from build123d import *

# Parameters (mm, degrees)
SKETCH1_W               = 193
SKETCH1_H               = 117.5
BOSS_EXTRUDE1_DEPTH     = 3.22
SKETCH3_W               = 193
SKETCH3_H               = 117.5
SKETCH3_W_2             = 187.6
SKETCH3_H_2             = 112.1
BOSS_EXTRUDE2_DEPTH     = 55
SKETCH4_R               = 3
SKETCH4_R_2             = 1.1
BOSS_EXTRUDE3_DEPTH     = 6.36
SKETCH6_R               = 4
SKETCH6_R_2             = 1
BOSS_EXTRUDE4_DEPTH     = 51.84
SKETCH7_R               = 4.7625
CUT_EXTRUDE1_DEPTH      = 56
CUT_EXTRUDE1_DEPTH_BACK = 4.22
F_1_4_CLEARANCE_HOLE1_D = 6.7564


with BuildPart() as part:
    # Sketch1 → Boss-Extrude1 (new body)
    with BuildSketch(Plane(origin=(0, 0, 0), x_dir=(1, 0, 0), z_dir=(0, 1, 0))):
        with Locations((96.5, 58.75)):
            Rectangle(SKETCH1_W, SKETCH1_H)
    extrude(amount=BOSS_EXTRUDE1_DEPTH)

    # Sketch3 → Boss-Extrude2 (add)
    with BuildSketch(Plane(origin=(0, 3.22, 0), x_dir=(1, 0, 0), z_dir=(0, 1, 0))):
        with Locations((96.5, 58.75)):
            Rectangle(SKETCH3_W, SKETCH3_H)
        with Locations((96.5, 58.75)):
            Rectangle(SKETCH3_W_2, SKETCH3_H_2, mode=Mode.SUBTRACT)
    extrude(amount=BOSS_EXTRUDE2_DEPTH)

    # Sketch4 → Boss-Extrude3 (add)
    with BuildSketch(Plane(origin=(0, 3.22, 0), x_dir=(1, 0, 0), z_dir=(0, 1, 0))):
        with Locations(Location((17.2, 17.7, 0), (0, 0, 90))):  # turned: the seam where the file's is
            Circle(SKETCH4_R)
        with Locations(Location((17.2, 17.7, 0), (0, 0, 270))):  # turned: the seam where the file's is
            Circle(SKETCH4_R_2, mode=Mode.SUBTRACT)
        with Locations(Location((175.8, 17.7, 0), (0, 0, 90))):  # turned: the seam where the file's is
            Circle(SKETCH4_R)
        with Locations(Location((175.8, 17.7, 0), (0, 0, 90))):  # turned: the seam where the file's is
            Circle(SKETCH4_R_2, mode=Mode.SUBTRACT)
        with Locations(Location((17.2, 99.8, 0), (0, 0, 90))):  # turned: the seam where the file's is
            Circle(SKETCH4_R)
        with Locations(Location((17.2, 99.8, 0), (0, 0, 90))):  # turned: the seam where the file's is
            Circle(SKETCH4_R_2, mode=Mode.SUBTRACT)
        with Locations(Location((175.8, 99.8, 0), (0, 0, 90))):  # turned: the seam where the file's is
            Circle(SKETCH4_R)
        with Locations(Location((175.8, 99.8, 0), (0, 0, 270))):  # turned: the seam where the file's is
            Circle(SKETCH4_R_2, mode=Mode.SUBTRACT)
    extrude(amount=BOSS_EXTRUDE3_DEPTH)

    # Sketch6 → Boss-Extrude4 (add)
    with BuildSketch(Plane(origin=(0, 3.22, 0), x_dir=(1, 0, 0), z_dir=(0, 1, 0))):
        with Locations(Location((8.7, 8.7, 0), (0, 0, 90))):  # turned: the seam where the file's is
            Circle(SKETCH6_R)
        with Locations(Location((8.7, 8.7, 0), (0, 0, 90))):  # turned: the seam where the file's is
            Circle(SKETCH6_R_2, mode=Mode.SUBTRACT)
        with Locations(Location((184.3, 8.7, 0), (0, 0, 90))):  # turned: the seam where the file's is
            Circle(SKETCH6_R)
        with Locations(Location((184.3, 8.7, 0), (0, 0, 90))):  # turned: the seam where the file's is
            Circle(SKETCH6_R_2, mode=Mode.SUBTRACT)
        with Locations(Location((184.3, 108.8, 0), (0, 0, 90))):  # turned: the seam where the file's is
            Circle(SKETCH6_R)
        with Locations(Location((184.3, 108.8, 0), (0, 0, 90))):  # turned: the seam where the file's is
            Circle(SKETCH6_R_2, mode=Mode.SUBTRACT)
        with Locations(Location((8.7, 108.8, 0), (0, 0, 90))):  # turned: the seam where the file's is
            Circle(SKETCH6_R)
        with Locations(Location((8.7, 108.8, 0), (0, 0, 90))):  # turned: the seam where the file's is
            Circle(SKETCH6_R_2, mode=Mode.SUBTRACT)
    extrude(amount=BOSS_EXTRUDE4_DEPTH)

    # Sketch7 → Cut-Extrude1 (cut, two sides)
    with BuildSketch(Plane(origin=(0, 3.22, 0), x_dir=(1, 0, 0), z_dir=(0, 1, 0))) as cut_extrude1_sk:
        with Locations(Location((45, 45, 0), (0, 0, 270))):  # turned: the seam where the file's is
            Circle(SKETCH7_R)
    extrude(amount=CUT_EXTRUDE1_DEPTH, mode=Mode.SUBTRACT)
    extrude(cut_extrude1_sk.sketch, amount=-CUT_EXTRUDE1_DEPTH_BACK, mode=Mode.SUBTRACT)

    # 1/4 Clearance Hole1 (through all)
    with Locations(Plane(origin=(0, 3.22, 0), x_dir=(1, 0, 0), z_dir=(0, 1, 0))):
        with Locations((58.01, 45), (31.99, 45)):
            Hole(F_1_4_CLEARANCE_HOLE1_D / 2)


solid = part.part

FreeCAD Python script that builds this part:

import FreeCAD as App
import Part
import Sketcher


def add_polygon(sketch, points):
    """Adds a closed chain of lines whose ends are joined by coincident constraints."""
    first, n = sketch.GeometryCount, len(points)
    for a, b in zip(points, points[1:] + points[:1]):
        sketch.addGeometry(Part.LineSegment(App.Vector(*a, 0), App.Vector(*b, 0)), False)
    for i in range(n):
        sketch.addConstraint(Sketcher.Constraint("Coincident", first + i, 2, first + (i + 1) % n, 1))

doc = App.newDocument("Part")
body = doc.addObject("PartDesign::Body", "Body")

# Sketch on XZ plane
sketch1 = doc.addObject("Sketcher::SketchObject", "Sketch")
body.addObject(sketch1)
sketch1.AttachmentSupport = (doc.XZ_Plane, [""])
sketch1.MapMode = "FlatFace"
add_polygon(sketch1, [(0, -118), (0, 0), (193, 0), (193, -118)])  # lines 0-3
sketch1.addConstraint([
    Sketcher.Constraint("Vertical", 0),
    Sketcher.Constraint("Horizontal", 1),
    Sketcher.Constraint("Vertical", 2),
    Sketcher.Constraint("Horizontal", 3),
    Sketcher.Constraint("Coincident", 0, 2, -1, 1),
    Sketcher.Constraint("DistanceX", 1, 1, 1, 2, 193.0),
    Sketcher.Constraint("DistanceY", 0, 1, 0, 2, 117.5),
])
pad1 = doc.addObject("PartDesign::Pad", "Pad")
body.addObject(pad1)
pad1.Profile = sketch1
pad1.Length = 3.22
pad1.Reversed = True

# Sketch on XZ plane
sketch2 = doc.addObject("Sketcher::SketchObject", "Sketch001")
body.addObject(sketch2)
sketch2.AttachmentSupport = (doc.XZ_Plane, [""])
sketch2.MapMode = "FlatFace"
sketch2.AttachmentOffset = App.Placement(App.Vector(0, 0, -3.22), App.Rotation())
add_polygon(sketch2, [(0, -118), (0, 0), (193, 0), (193, -118)])  # lines 0-3
add_polygon(sketch2, [(190, -3), (3, -3), (3, -115), (190, -115)])  # lines 4-7
sketch2.addConstraint([
    Sketcher.Constraint("Vertical", 0),
    Sketcher.Constraint("Horizontal", 1),
    Sketcher.Constraint("Vertical", 2),
    Sketcher.Constraint("Horizontal", 3),
    Sketcher.Constraint("Horizontal", 4),
    Sketcher.Constraint("Vertical", 5),
    Sketcher.Constraint("Horizontal", 6),
    Sketcher.Constraint("Vertical", 7),
    Sketcher.Constraint("Coincident", 0, 2, -1, 1),
    Sketcher.Constraint("DistanceX", 1, 1, 1, 2, 193.0),
    Sketcher.Constraint("DistanceX", 4, 2, 4, 1, 187.6),
    Sketcher.Constraint("DistanceY", 0, 1, 0, 2, 117.5),
    Sketcher.Constraint("DistanceY", 5, 2, 5, 1, 112.1),
    Sketcher.Constraint("DistanceX", -1, 1, 4, 2, 2.7),
    Sketcher.Constraint("DistanceY", 4, 2, -1, 1, 2.7),
])
pad2 = doc.addObject("PartDesign::Pad", "Pad001")
body.addObject(pad2)
pad2.Profile = sketch2
pad2.Length = 55
pad2.Reversed = True

# Sketch on XZ plane
sketch3 = doc.addObject("Sketcher::SketchObject", "Sketch002")
body.addObject(sketch3)
sketch3.AttachmentSupport = (doc.XZ_Plane, [""])
sketch3.MapMode = "FlatFace"
sketch3.AttachmentOffset = App.Placement(App.Vector(0, 0, -3.22), App.Rotation())
sketch3.addGeometry([
    Part.Circle(App.Vector(17.2, -17.7, 0), App.Vector(0, 0, 1), 3),  # 0
    Part.Circle(App.Vector(17.2, -17.7, 0), App.Vector(0, 0, 1), 1.1),  # 1
    Part.Circle(App.Vector(175.8, -17.7, 0), App.Vector(0, 0, 1), 3),  # 2
    Part.Circle(App.Vector(175.8, -17.7, 0), App.Vector(0, 0, 1), 1.1),  # 3
    Part.Circle(App.Vector(17.2, -99.8, 0), App.Vector(0, 0, 1), 3),  # 4
    Part.Circle(App.Vector(17.2, -99.8, 0), App.Vector(0, 0, 1), 1.1),  # 5
    Part.Circle(App.Vector(175.8, -99.8, 0), App.Vector(0, 0, 1), 3),  # 6
    Part.Circle(App.Vector(175.8, -99.8, 0), App.Vector(0, 0, 1), 1.1),  # 7
], False)
sketch3.addConstraint([
    Sketcher.Constraint("Coincident", 1, 3, 0, 3),
    Sketcher.Constraint("Coincident", 3, 3, 2, 3),
    Sketcher.Constraint("Coincident", 5, 3, 4, 3),
    Sketcher.Constraint("Coincident", 7, 3, 6, 3),
    Sketcher.Constraint("Equal", 0, 2),
    Sketcher.Constraint("Equal", 1, 3),
    Sketcher.Constraint("Equal", 2, 4),
    Sketcher.Constraint("Equal", 3, 5),
    Sketcher.Constraint("Equal", 4, 6),
    Sketcher.Constraint("Equal", 5, 7),
    Sketcher.Constraint("Horizontal", 1, 3, 2, 3),
    Sketcher.Constraint("Horizontal", 5, 3, 6, 3),
    Sketcher.Constraint("Vertical", 1, 3, 4, 3),
    Sketcher.Constraint("Vertical", 3, 3, 6, 3),
    Sketcher.Constraint("Diameter", 0, 6.0),
    Sketcher.Constraint("Diameter", 1, 2.2),
    Sketcher.Constraint("DistanceX", -1, 1, 0, 3, 17.2),
    Sketcher.Constraint("DistanceY", 0, 3, -1, 1, 17.7),
    Sketcher.Constraint("DistanceX", -1, 1, 2, 3, 175.8),
    Sketcher.Constraint("DistanceY", 4, 3, -1, 1, 99.8),
])
pad3 = doc.addObject("PartDesign::Pad", "Pad002")
body.addObject(pad3)
pad3.Profile = sketch3
pad3.Length = 6.36
pad3.Reversed = True

# Sketch on XZ plane
sketch4 = doc.addObject("Sketcher::SketchObject", "Sketch003")
body.addObject(sketch4)
sketch4.AttachmentSupport = (doc.XZ_Plane, [""])
sketch4.MapMode = "FlatFace"
sketch4.AttachmentOffset = App.Placement(App.Vector(0, 0, -3.22), App.Rotation())
sketch4.addGeometry([
    Part.Circle(App.Vector(8.7, -8.7, 0), App.Vector(0, 0, 1), 4),  # 0
    Part.Circle(App.Vector(8.7, -8.7, 0), App.Vector(0, 0, 1), 1),  # 1
    Part.Circle(App.Vector(184.3, -8.7, 0), App.Vector(0, 0, 1), 4),  # 2
    Part.Circle(App.Vector(184.3, -8.7, 0), App.Vector(0, 0, 1), 1),  # 3
    Part.Circle(App.Vector(184.3, -108.8, 0), App.Vector(0, 0, 1), 4),  # 4
    Part.Circle(App.Vector(184.3, -108.8, 0), App.Vector(0, 0, 1), 1),  # 5
    Part.Circle(App.Vector(8.7, -108.8, 0), App.Vector(0, 0, 1), 4),  # 6
    Part.Circle(App.Vector(8.7, -108.8, 0), App.Vector(0, 0, 1), 1),  # 7
], False)
sketch4.addConstraint([
    Sketcher.Constraint("Coincident", 1, 3, 0, 3),
    Sketcher.Constraint("Coincident", 3, 3, 2, 3),
    Sketcher.Constraint("Coincident", 5, 3, 4, 3),
    Sketcher.Constraint("Coincident", 7, 3, 6, 3),
    Sketcher.Constraint("Equal", 0, 2),
    Sketcher.Constraint("Equal", 1, 3),
    Sketcher.Constraint("Equal", 2, 4),
    Sketcher.Constraint("Equal", 3, 5),
    Sketcher.Constraint("Equal", 4, 6),
    Sketcher.Constraint("Equal", 5, 7),
    Sketcher.Constraint("Horizontal", 1, 3, 2, 3),
    Sketcher.Constraint("Horizontal", 5, 3, 6, 3),
    Sketcher.Constraint("Vertical", 3, 3, 4, 3),
    Sketcher.Constraint("Vertical", 1, 3, 6, 3),
    Sketcher.Constraint("Diameter", 0, 8.0),
    Sketcher.Constraint("Diameter", 1, 2.0),
    Sketcher.Constraint("DistanceX", -1, 1, 0, 3, 8.7),
    Sketcher.Constraint("DistanceY", 0, 3, -1, 1, 8.7),
    Sketcher.Constraint("DistanceX", -1, 1, 2, 3, 184.3),
    Sketcher.Constraint("DistanceY", 4, 3, -1, 1, 108.8),
])
pad4 = doc.addObject("PartDesign::Pad", "Pad003")
body.addObject(pad4)
pad4.Profile = sketch4
pad4.Length = 51.84
pad4.Reversed = True

# Sketch on XZ plane
sketch5 = doc.addObject("Sketcher::SketchObject", "Sketch004")
body.addObject(sketch5)
sketch5.AttachmentSupport = (doc.XZ_Plane, [""])
sketch5.MapMode = "FlatFace"
sketch5.AttachmentOffset = App.Placement(App.Vector(0, 0, -3.22), App.Rotation())
sketch5.addGeometry(Part.Circle(App.Vector(45, -45, 0), App.Vector(0, 0, 1), 4.8), False)
sketch5.addConstraint([
    Sketcher.Constraint("Diameter", 0, 9.525),
    Sketcher.Constraint("DistanceX", -1, 1, 0, 3, 45.0),
    Sketcher.Constraint("DistanceY", 0, 3, -1, 1, 45.0),
])
pocket1 = doc.addObject("PartDesign::Pocket", "Pocket")
body.addObject(pocket1)
pocket1.Profile = sketch5
pocket1.Type = "ThroughAll"
pocket1.Midplane = True

# Sketch on XZ plane
sketch6 = doc.addObject("Sketcher::SketchObject", "Sketch005")
body.addObject(sketch6)
sketch6.AttachmentSupport = (doc.XZ_Plane, [""])
sketch6.MapMode = "FlatFace"
sketch6.AttachmentOffset = App.Placement(App.Vector(0, 0, -3.22), App.Rotation())
sketch6.addGeometry([
    Part.Circle(App.Vector(58, -45, 0), App.Vector(0, 0, 1), 3.4),
    Part.Circle(App.Vector(32, -45, 0), App.Vector(0, 0, 1), 3.4),
], False)
sketch6.addConstraint([
    Sketcher.Constraint("Equal", 0, 1),
    Sketcher.Constraint("Horizontal", 0, 3, 1, 3),
    Sketcher.Constraint("DistanceY", 0, 3, -1, 1, 45.0),
    Sketcher.Constraint("Diameter", 0, 6.7564),
    Sketcher.Constraint("DistanceX", -1, 1, 0, 3, 58.01),
    Sketcher.Constraint("DistanceX", -1, 1, 1, 3, 31.99),
])
doc.recompute()
hole = doc.addObject("PartDesign::Hole", "Hole")
body.addObject(hole)
hole.Profile = sketch6
hole.ThreadType = "None"
hole.Diameter = 6.7564
hole.DepthType = "ThroughAll"
hole.Reversed = True

doc.recompute()
